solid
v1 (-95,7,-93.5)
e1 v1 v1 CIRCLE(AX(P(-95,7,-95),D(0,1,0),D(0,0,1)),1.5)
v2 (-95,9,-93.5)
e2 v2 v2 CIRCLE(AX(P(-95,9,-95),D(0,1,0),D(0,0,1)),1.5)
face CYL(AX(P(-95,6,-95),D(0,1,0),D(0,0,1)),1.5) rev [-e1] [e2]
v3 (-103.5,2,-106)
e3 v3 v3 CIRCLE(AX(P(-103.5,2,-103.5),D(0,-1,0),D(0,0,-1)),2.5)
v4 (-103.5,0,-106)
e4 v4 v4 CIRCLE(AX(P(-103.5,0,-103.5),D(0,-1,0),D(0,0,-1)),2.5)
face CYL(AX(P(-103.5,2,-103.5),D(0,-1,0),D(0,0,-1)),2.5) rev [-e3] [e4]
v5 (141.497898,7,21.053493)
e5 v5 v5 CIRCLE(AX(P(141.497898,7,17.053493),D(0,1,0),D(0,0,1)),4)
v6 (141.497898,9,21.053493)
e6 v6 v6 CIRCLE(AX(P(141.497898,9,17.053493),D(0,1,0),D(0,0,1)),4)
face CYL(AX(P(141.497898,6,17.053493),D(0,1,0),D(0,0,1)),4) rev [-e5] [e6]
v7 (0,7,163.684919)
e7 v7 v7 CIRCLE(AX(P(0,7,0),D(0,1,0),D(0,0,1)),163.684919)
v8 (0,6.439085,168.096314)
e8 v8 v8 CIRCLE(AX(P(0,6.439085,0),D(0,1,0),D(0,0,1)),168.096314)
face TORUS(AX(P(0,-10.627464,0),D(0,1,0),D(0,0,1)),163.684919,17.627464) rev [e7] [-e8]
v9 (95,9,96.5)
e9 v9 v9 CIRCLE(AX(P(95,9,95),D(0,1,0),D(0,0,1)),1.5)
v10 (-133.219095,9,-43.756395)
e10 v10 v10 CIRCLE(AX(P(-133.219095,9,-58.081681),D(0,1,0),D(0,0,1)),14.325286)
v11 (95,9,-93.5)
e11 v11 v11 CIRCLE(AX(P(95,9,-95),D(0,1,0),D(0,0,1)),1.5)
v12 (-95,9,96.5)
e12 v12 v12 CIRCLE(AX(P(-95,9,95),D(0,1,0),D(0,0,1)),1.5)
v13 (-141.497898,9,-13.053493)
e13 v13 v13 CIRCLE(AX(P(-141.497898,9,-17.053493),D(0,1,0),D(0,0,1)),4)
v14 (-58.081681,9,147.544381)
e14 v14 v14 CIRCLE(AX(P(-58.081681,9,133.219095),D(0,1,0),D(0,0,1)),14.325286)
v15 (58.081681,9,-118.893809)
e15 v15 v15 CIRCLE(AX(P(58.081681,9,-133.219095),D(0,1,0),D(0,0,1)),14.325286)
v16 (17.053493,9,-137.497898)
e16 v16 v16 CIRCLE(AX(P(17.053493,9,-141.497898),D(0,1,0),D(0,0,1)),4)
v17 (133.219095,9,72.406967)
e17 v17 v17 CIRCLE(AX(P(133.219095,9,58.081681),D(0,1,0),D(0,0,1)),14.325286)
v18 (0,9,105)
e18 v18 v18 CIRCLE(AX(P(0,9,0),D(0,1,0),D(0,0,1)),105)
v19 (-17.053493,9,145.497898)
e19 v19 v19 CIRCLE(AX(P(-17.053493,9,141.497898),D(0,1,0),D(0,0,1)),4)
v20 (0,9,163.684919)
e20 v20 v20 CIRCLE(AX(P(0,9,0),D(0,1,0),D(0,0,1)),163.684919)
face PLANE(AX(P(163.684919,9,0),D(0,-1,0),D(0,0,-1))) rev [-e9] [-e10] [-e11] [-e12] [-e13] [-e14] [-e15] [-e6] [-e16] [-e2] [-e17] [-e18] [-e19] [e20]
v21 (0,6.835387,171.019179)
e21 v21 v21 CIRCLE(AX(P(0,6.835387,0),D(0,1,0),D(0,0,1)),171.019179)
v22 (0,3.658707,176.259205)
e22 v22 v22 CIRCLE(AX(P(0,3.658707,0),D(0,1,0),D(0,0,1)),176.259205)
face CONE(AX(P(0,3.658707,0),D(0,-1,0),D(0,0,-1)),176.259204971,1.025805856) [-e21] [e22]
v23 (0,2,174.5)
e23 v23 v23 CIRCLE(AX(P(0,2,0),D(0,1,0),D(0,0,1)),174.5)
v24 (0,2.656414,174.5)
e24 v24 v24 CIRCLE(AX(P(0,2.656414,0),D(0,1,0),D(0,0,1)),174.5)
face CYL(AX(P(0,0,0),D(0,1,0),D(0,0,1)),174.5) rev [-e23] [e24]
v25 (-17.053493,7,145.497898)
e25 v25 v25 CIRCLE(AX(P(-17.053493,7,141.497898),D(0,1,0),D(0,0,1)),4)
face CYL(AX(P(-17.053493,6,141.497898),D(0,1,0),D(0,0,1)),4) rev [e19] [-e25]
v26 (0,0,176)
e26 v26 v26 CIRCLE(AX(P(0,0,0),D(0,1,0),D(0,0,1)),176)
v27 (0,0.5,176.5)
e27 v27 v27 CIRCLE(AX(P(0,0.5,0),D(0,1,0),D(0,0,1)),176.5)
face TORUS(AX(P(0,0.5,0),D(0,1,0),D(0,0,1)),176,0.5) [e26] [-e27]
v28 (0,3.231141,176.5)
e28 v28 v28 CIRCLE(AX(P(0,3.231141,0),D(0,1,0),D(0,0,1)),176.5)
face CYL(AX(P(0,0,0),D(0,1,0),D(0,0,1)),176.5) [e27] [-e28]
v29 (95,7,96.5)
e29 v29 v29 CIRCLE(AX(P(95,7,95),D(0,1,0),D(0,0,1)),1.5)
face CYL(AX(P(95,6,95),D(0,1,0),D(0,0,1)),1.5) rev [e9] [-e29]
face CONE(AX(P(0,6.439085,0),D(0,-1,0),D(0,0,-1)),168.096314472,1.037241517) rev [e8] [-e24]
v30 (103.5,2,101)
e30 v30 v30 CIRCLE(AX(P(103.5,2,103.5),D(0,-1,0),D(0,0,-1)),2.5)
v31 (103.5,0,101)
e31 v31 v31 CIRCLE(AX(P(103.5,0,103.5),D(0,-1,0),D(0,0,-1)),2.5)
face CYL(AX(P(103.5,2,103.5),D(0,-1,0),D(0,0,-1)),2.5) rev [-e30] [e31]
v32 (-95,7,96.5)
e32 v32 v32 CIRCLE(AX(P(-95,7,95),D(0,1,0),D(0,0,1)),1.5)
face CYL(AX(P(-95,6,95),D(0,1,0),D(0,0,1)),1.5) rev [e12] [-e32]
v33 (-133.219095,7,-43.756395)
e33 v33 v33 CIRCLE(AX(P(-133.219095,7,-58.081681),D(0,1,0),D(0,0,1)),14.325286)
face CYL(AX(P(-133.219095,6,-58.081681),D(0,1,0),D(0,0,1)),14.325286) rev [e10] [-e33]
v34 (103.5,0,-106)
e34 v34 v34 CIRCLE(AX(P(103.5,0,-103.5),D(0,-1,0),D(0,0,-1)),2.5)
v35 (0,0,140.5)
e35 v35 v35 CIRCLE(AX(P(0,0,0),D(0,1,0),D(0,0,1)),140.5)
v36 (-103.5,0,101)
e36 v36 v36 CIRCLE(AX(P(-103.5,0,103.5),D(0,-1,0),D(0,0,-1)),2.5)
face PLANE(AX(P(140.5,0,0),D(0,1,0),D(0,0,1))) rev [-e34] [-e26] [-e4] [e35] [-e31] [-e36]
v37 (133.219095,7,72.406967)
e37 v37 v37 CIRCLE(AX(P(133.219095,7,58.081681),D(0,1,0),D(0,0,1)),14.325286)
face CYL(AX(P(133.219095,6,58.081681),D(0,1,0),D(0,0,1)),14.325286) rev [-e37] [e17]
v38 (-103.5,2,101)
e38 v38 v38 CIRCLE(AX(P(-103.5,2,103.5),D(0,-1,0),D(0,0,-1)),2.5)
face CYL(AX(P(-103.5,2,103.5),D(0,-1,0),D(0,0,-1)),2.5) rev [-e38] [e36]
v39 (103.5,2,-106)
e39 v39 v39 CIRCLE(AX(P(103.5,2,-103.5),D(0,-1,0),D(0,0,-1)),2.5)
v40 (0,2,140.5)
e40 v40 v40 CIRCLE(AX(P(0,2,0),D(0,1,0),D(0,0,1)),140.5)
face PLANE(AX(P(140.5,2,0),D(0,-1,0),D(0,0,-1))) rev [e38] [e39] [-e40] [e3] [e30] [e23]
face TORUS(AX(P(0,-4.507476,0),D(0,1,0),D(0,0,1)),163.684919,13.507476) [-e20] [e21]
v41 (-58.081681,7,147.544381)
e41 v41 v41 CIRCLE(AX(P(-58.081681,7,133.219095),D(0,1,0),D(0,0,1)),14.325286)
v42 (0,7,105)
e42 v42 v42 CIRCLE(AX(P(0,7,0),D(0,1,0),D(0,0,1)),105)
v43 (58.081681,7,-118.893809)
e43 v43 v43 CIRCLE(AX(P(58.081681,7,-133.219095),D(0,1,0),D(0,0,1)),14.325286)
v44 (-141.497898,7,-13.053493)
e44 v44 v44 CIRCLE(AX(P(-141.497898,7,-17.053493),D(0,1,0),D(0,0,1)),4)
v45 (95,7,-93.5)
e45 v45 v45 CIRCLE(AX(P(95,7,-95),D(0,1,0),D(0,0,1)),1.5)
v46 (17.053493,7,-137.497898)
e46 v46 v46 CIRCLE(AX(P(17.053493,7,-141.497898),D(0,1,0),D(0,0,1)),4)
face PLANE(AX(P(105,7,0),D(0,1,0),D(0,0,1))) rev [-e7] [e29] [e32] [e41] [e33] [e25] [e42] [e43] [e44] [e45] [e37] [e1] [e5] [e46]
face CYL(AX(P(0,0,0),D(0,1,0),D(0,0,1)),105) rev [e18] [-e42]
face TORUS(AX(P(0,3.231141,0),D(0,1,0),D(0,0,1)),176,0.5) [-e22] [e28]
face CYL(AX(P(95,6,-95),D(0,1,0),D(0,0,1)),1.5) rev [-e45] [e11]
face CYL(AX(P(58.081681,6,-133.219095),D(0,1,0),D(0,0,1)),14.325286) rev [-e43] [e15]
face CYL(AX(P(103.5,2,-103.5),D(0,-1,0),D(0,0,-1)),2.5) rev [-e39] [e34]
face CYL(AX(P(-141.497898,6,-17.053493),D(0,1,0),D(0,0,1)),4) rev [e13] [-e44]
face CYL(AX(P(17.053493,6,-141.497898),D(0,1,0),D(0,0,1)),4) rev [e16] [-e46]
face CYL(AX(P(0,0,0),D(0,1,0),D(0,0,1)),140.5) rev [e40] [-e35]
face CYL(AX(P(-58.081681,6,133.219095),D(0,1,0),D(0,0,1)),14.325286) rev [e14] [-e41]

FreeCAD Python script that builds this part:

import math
import FreeCAD as App
import Part
import Sketcher

V = App.Vector

doc = App.newDocument("Part")
body = doc.addObject("PartDesign::Body", "Body")

sketch1 = body.newObject("Sketcher::SketchObject", "Sketch")
sketch1.AttachmentSupport = (doc.getObject("XY_Plane"), [""])
sketch1.MapMode = "FlatFace"
sketch1.addGeometry([
    Part.LineSegment(V(163.68, 9, 0), V(105, 9, 0)),
    Part.LineSegment(V(105, 9, 0), V(105, 7, 0)),
    Part.LineSegment(V(105, 7, 0), V(163.68, 7, 0)),
    Part.ArcOfCircle(Part.Circle(V(163.68, -10.63, 0), V(0, 0, 1), 17.63), math.radians(75.51), math.radians(90)),
    Part.LineSegment(V(168.1, 6.44, 0), V(174.5, 2.66, 0)),
    Part.LineSegment(V(174.5, 2.66, 0), V(174.5, 2, 0)),
    Part.LineSegment(V(174.5, 2, 0), V(140.5, 2, 0)),
    Part.LineSegment(V(140.5, 2, 0), V(140.5, 0, 0)),
    Part.LineSegment(V(140.5, 0, 0), V(176, 0, 0)),
    Part.ArcOfCircle(Part.Circle(V(176, 0.5, 0), V(0, 0, 1), 0.5), math.radians(-90), math.radians(0)),
    Part.LineSegment(V(176.5, 0.5, 0), V(176.5, 3.23, 0)),
    Part.ArcOfCircle(Part.Circle(V(176, 3.23, 0), V(0, 0, 1), 0.5), math.radians(0), math.radians(59)),
    Part.LineSegment(V(176.26, 3.66, 0), V(171.02, 6.84, 0)),
    Part.ArcOfCircle(Part.Circle(V(163.68, -4.51, 0), V(0, 0, 1), 13.51), math.radians(57), math.radians(90)),
], False)
sketch1.addConstraint([
    Sketcher.Constraint("Coincident", 0, 2, 1, 1),
    Sketcher.Constraint("Coincident", 1, 2, 2, 1),
    Sketcher.Constraint("Tangent", 2, 2, 3, 2),
    Sketcher.Constraint("Coincident", 3, 1, 4, 1),
    Sketcher.Constraint("Coincident", 4, 2, 5, 1),
    Sketcher.Constraint("Coincident", 5, 2, 6, 1),
    Sketcher.Constraint("Coincident", 6, 2, 7, 1),
    Sketcher.Constraint("Coincident", 7, 2, 8, 1),
    Sketcher.Constraint("Tangent", 8, 2, 9, 1),
    Sketcher.Constraint("Tangent", 9, 2, 10, 1),
    Sketcher.Constraint("Tangent", 10, 2, 11, 1),
    Sketcher.Constraint("Tangent", 11, 2, 12, 1),
    Sketcher.Constraint("Coincident", 12, 2, 13, 1),
    Sketcher.Constraint("Tangent", 13, 2, 0, 1),
    Sketcher.Constraint("Horizontal", 0),
    Sketcher.Constraint("Vertical", 1),
    Sketcher.Constraint("Horizontal", 2),
    Sketcher.Constraint("Vertical", 5),
    Sketcher.Constraint("Horizontal", 6),
    Sketcher.Constraint("Vertical", 7),
    Sketcher.Constraint("Horizontal", 8),
    Sketcher.Constraint("Vertical", 10),
    Sketcher.Constraint("Equal", 9, 11),
    Sketcher.Constraint("PointOnObject", 7, 2, -1),
    Sketcher.Constraint("Vertical", 3, 3, 13, 3),
    Sketcher.Constraint("Equal", 1, 7),
    Sketcher.Constraint("Radius", 9, 0.5),
    Sketcher.Constraint("DistanceX", 6, 2, 6, 1, 34.0),
    Sketcher.Constraint("DistanceY", 1, 2, 1, 1, 2.0),
    Sketcher.Constraint("DistanceX", 8, 1, 8, 2, 35.5),
    Sketcher.Constraint("DistanceX", -1, 1, 9, 3, 176.0),
    Sketcher.Constraint("DistanceX", -1, 1, 0, 2, 105.0),
    Sketcher.Constraint("DistanceY", -1, 1, 0, 2, 9.0),
    Sketcher.Constraint("Radius", 3, 17.627464),
    Sketcher.Constraint("Radius", 13, 13.507476),
    Sketcher.Constraint("DistanceX", 0, 2, 0, 1, 58.684919),
    Sketcher.Constraint("DistanceY", 10, 1, 10, 2, 2.731141),
    Sketcher.Constraint("Distance", 4, 7.437458),
    Sketcher.Constraint("DistanceY", 5, 2, 5, 1, 0.656414),
    Sketcher.Constraint("DistanceX", -1, 1, 12, 2, 171.019179),
])
revolution = body.newObject("PartDesign::Revolution", "Revolution")
revolution.Profile = sketch1
revolution.ReferenceAxis = (sketch1, ["V_Axis"])
revolution.Angle = 360

sketch2 = body.newObject("Sketcher::SketchObject", "Sketch001")
sketch2.AttachmentSupport = (doc.getObject("XZ_Plane"), [""])
sketch2.MapMode = "FlatFace"
sketch2.AttachmentOffset = App.Placement(V(0, 0, -9), App.Rotation())
sketch2.addGeometry([
    Part.Circle(V(58, -133, 0), V(0, 0, 1), 14),
    Part.Circle(V(133, 58, 0), V(0, 0, 1), 14),
    Part.Circle(V(-58, 133, 0), V(0, 0, 1), 14),
    Part.Circle(V(-133, -58, 0), V(0, 0, 1), 14),
], False)
sketch2.addConstraint([
    Sketcher.Constraint("Equal", 0, 1),
    Sketcher.Constraint("Equal", 1, 2),
    Sketcher.Constraint("Equal", 2, 3),
    Sketcher.Constraint("Symmetric", 0, 3, 2, 3, -1, 1),
    Sketcher.Constraint("Symmetric", 1, 3, 3, 3, -1, 1),
    Sketcher.Constraint("Diameter", 0, 28.650572),
    Sketcher.Constraint("DistanceX", -1, 1, 0, 3, 58.081681),
    Sketcher.Constraint("DistanceY", -1, 1, 1, 3, 58.081681),
    Sketcher.Constraint("DistanceY", 0, 3, 2, 3, 266.438189),
    Sketcher.Constraint("DistanceX", 3, 3, 1, 3, 266.438189),
])
pocket1 = body.newObject("PartDesign::Pocket", "Pocket")
pocket1.Profile = sketch2
pocket1.Length = 3
pocket1.Reversed = True

sketch3 = body.newObject("Sketcher::SketchObject", "Sketch002")
sketch3.AttachmentSupport = (doc.getObject("XZ_Plane"), [""])
sketch3.MapMode = "FlatFace"
sketch3.AttachmentOffset = App.Placement(V(0, 0, -9), App.Rotation())
sketch3.addGeometry([
    Part.Circle(V(17.1, -141.5, 0), V(0, 0, 1), 4),
    Part.Circle(V(141.5, 17.1, 0), V(0, 0, 1), 4),
    Part.Circle(V(-17.1, 141.5, 0), V(0, 0, 1), 4),
    Part.Circle(V(-141.5, -17.1, 0), V(0, 0, 1), 4),
], False)
sketch3.addConstraint([
    Sketcher.Constraint("Equal", 0, 1),
    Sketcher.Constraint("Equal", 1, 2),
    Sketcher.Constraint("Equal", 2, 3),
    Sketcher.Constraint("Symmetric", 0, 3, 2, 3, -1, 1),
    Sketcher.Constraint("Symmetric", 1, 3, 3, 3, -1, 1),
    Sketcher.Constraint("Diameter", 0, 8.0),
    Sketcher.Constraint("DistanceY", 0, 3, 1, 3, 158.55139),
    Sketcher.Constraint("DistanceX", 2, 3, 1, 3, 158.55139),
    Sketcher.Constraint("DistanceX", -1, 1, 0, 3, 17.053493),
    Sketcher.Constraint("DistanceY", 0, 3, -1, 1, 141.497898),
])
pocket2 = body.newObject("PartDesign::Pocket", "Pocket001")
pocket2.Profile = sketch3
pocket2.Length = 3
pocket2.Reversed = True

sketch4 = body.newObject("Sketcher::SketchObject", "Sketch003")
sketch4.AttachmentSupport = (doc.getObject("XZ_Plane"), [""])
sketch4.MapMode = "FlatFace"
sketch4.addGeometry([
    Part.Circle(V(-103.5, 103.5, 0), V(0, 0, 1), 2.5),
    Part.Circle(V(103.5, 103.5, 0), V(0, 0, 1), 2.5),
    Part.Circle(V(103.5, -103.5, 0), V(0, 0, 1), 2.5),
    Part.Circle(V(-103.5, -103.5, 0), V(0, 0, 1), 2.5),
], False)
sketch4.addConstraint([
    Sketcher.Constraint("Equal", 0, 1),
    Sketcher.Constraint("Equal", 1, 2),
    Sketcher.Constraint("Equal", 2, 3),
    Sketcher.Constraint("Symmetric", 0, 3, 2, 3, -1, 1),
    Sketcher.Constraint("Symmetric", 1, 3, 3, 3, -1, 1),
    Sketcher.Constraint("Symmetric", 0, 3, 1, 3, -2),
    Sketcher.Constraint("Diameter", 0, 5.0),
    Sketcher.Constraint("DistanceX", 0, 3, 1, 3, 207.0),
    Sketcher.Constraint("DistanceY", 2, 3, 1, 3, 207.0),
])
pocket3 = body.newObject("PartDesign::Pocket", "Pocket002")
pocket3.Profile = sketch4
pocket3.Length = 2

sketch5 = body.newObject("Sketcher::SketchObject", "Sketch004")
sketch5.AttachmentSupport = (doc.getObject("XZ_Plane"), [""])
sketch5.MapMode = "FlatFace"
sketch5.AttachmentOffset = App.Placement(V(0, 0, -9), App.Rotation())
sketch5.addGeometry([
    Part.Circle(V(-95, -95, 0), V(0, 0, 1), 1.5),
    Part.Circle(V(95, -95, 0), V(0, 0, 1), 1.5),
    Part.Circle(V(95, 95, 0), V(0, 0, 1), 1.5),
    Part.Circle(V(-95, 95, 0), V(0, 0, 1), 1.5),
], False)
sketch5.addConstraint([
    Sketcher.Constraint("Equal", 0, 1),
    Sketcher.Constraint("Equal", 1, 2),
    Sketcher.Constraint("Equal", 2, 3),
    Sketcher.Constraint("Symmetric", 0, 3, 2, 3, -1, 1),
    Sketcher.Constraint("Symmetric", 1, 3, 3, 3, -1, 1),
    Sketcher.Constraint("Symmetric", 0, 3, 1, 3, -2),
    Sketcher.Constraint("Diameter", 0, 3.0),
    Sketcher.Constraint("DistanceX", 0, 3, -1, 1, 95.0),
    Sketcher.Constraint("DistanceY", 0, 3, -1, 1, 95.0),
])
pocket4 = body.newObject("PartDesign::Pocket", "Pocket003")
pocket4.Profile = sketch5
pocket4.Length = 3
pocket4.Reversed = True

doc.recompute()
